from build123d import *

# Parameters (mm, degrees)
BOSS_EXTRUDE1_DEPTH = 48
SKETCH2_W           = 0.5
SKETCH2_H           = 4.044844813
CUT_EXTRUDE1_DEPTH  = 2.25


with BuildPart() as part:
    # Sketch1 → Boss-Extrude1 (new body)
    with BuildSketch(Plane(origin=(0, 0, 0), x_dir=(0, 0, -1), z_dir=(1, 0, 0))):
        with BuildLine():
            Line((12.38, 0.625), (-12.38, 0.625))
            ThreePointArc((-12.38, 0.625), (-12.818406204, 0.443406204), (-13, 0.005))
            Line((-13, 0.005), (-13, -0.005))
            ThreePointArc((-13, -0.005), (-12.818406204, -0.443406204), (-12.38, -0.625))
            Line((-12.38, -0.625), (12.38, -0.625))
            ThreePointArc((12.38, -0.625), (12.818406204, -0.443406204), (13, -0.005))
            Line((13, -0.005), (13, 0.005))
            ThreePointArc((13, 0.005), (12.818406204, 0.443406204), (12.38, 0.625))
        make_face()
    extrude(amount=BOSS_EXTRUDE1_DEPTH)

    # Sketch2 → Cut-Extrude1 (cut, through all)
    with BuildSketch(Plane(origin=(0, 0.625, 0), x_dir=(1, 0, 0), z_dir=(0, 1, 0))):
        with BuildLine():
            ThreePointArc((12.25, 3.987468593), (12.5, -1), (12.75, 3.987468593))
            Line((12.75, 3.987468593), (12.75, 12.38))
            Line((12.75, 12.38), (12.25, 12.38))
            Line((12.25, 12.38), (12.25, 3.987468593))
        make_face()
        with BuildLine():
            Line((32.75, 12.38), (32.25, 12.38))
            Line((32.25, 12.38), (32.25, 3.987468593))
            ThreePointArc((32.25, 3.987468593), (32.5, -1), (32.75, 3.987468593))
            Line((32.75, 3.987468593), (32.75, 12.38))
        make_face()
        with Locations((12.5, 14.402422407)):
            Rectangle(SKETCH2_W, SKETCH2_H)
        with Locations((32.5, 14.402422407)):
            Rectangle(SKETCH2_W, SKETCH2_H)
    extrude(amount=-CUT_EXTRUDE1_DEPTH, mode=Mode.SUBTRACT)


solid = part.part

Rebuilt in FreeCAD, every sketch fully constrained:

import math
import FreeCAD as App
import Part
import Sketcher
from FreeCAD import Vector
Q = App.Units.Quantity

doc = App.newDocument("Part")
body = doc.addObject("PartDesign::Body", "Body")

# Sketch on YZ plane
sketch1 = doc.addObject("Sketcher::SketchObject", "Sketch")
body.addObject(sketch1)
sketch1.AttachmentSupport = (doc.YZ_Plane, [""])
sketch1.MapMode = "FlatFace"
sketch1.addGeometry([
    Part.LineSegment(Vector(0.625, -12.38, 0), Vector(0.625, 12.38, 0)),  # 0
    Part.ArcOfCircle(Part.Circle(Vector(0.005, 12.38, 0), Vector(0, 0, 1), 0.62), math.radians(0), math.radians(90)),  # 1
    Part.LineSegment(Vector(0.005, 13, 0), Vector(-0.005, 13, 0)),  # 2
    Part.ArcOfCircle(Part.Circle(Vector(-0.005, 12.38, 0), Vector(0, 0, 1), 0.62), math.radians(90), math.radians(180)),  # 3
    Part.LineSegment(Vector(-0.625, 12.38, 0), Vector(-0.625, -12.38, 0)),  # 4
    Part.ArcOfCircle(Part.Circle(Vector(-0.005, -12.38, 0), Vector(0, 0, 1), 0.62), math.radians(-180), math.radians(-90)),  # 5
    Part.LineSegment(Vector(-0.005, -13, 0), Vector(0.005, -13, 0)),  # 6
    Part.ArcOfCircle(Part.Circle(Vector(0.005, -12.38, 0), Vector(0, 0, 1), 0.62), math.radians(-90), math.radians(0)),  # 7
], False)
sketch1.addConstraint([
    Sketcher.Constraint("Tangent", 0, 2, 1, 1),
    Sketcher.Constraint("Tangent", 1, 2, 2, 1),
    Sketcher.Constraint("Tangent", 2, 2, 3, 1),
    Sketcher.Constraint("Tangent", 3, 2, 4, 1),
    Sketcher.Constraint("Tangent", 4, 2, 5, 1),
    Sketcher.Constraint("Tangent", 5, 2, 6, 1),
    Sketcher.Constraint("Tangent", 6, 2, 7, 1),
    Sketcher.Constraint("Tangent", 7, 2, 0, 1),
    Sketcher.Constraint("Vertical", 0),
    Sketcher.Constraint("Horizontal", 2),
    Sketcher.Constraint("Vertical", 4),
    Sketcher.Constraint("Horizontal", 6),
    Sketcher.Constraint("Equal", 1, 3),
    Sketcher.Constraint("Equal", 3, 5),
    Sketcher.Constraint("Equal", 5, 7),
    Sketcher.Constraint("Symmetric", 1, 3, 5, 3, -1, 1),
    Sketcher.Constraint("Radius", 1, Q("0.62 mm")),
    Sketcher.Constraint("DistanceY", -1, 1, 1, 2, Q("13 mm")),
    Sketcher.Constraint("DistanceX", 2, 2, 2, 1, Q("0.01 mm")),
])
pad1 = doc.addObject("PartDesign::Pad", "Pad")
body.addObject(pad1)
pad1.Profile = sketch1
pad1.Length = 48

# Sketch on XZ plane
sketch2 = doc.addObject("Sketcher::SketchObject", "Sketch001")
body.addObject(sketch2)
sketch2.AttachmentSupport = (doc.XZ_Plane, [""])
sketch2.MapMode = "FlatFace"
sketch2.AttachmentOffset = App.Placement(Vector(0, 0, -0.625), App.Rotation())
sketch2.addGeometry([
    Part.ArcOfCircle(Part.Circle(Vector(12.5, -1.5, 0), Vector(0, 0, 1), 2.5), math.radians(-84), math.radians(264)),  # 0
    Part.LineSegment(Vector(12.8, -4, 0), Vector(12.8, -16.4, 0)),  # 1
    Part.LineSegment(Vector(12.8, -16.4, 0), Vector(12.2, -16.4, 0)),  # 2
    Part.LineSegment(Vector(12.2, -16.4, 0), Vector(12.2, -4, 0)),  # 3
    Part.ArcOfCircle(Part.Circle(Vector(32.5, -1.5, 0), Vector(0, 0, 1), 2.5), math.radians(-84), math.radians(264)),  # 4
    Part.LineSegment(Vector(32.8, -4, 0), Vector(32.8, -16.4, 0)),  # 5
    Part.LineSegment(Vector(32.8, -16.4, 0), Vector(32.2, -16.4, 0)),  # 6
    Part.LineSegment(Vector(32.2, -16.4, 0), Vector(32.2, -4, 0)),  # 7
], False)
sketch2.addConstraint([
    Sketcher.Constraint("Coincident", 0, 1, 1, 1),
    Sketcher.Constraint("Coincident", 1, 2, 2, 1),
    Sketcher.Constraint("Coincident", 2, 2, 3, 1),
    Sketcher.Constraint("Coincident", 3, 2, 0, 2),
    Sketcher.Constraint("Coincident", 4, 1, 5, 1),
    Sketcher.Constraint("Coincident", 5, 2, 6, 1),
    Sketcher.Constraint("Coincident", 6, 2, 7, 1),
    Sketcher.Constraint("Coincident", 7, 2, 4, 2),
    Sketcher.Constraint("Vertical", 1),
    Sketcher.Constraint("Horizontal", 2),
    Sketcher.Constraint("Vertical", 3),
    Sketcher.Constraint("Vertical", 5),
    Sketcher.Constraint("Horizontal", 6),
    Sketcher.Constraint("Vertical", 7),
    Sketcher.Constraint("Equal", 0, 4),
    Sketcher.Constraint("Horizontal", 0, 3, 4, 3),
    Sketcher.Constraint("Horizontal", 0, 1, 3, 2),
    Sketcher.Constraint("Horizontal", 3, 2, 4, 1),
    Sketcher.Constraint("Horizontal", 2, 2, 5, 2),
    Sketcher.Constraint("Horizontal", 4, 1, 7, 2),
    Sketcher.Constraint("Radius", 0, Q("2.5 mm")),
    Sketcher.Constraint("DistanceX", 2, 2, 2, 1, Q("0.5 mm")),
    Sketcher.Constraint("DistanceX", 0, 3, 4, 3, Q("20 mm")),
    Sketcher.Constraint("DistanceX", -1, 1, 0, 3, Q("12.5 mm")),
    Sketcher.Constraint("DistanceY", 0, 3, -1, 1, Q("1.5 mm")),
    Sketcher.Constraint("DistanceY", 1, 2, 1, 1, Q("12.437376 mm")),
])
pocket1 = doc.addObject("PartDesign::Pocket", "Pocket")
body.addObject(pocket1)
pocket1.Profile = sketch2
pocket1.Type = "ThroughAll"
pocket1.Reversed = True

doc.recompute()
